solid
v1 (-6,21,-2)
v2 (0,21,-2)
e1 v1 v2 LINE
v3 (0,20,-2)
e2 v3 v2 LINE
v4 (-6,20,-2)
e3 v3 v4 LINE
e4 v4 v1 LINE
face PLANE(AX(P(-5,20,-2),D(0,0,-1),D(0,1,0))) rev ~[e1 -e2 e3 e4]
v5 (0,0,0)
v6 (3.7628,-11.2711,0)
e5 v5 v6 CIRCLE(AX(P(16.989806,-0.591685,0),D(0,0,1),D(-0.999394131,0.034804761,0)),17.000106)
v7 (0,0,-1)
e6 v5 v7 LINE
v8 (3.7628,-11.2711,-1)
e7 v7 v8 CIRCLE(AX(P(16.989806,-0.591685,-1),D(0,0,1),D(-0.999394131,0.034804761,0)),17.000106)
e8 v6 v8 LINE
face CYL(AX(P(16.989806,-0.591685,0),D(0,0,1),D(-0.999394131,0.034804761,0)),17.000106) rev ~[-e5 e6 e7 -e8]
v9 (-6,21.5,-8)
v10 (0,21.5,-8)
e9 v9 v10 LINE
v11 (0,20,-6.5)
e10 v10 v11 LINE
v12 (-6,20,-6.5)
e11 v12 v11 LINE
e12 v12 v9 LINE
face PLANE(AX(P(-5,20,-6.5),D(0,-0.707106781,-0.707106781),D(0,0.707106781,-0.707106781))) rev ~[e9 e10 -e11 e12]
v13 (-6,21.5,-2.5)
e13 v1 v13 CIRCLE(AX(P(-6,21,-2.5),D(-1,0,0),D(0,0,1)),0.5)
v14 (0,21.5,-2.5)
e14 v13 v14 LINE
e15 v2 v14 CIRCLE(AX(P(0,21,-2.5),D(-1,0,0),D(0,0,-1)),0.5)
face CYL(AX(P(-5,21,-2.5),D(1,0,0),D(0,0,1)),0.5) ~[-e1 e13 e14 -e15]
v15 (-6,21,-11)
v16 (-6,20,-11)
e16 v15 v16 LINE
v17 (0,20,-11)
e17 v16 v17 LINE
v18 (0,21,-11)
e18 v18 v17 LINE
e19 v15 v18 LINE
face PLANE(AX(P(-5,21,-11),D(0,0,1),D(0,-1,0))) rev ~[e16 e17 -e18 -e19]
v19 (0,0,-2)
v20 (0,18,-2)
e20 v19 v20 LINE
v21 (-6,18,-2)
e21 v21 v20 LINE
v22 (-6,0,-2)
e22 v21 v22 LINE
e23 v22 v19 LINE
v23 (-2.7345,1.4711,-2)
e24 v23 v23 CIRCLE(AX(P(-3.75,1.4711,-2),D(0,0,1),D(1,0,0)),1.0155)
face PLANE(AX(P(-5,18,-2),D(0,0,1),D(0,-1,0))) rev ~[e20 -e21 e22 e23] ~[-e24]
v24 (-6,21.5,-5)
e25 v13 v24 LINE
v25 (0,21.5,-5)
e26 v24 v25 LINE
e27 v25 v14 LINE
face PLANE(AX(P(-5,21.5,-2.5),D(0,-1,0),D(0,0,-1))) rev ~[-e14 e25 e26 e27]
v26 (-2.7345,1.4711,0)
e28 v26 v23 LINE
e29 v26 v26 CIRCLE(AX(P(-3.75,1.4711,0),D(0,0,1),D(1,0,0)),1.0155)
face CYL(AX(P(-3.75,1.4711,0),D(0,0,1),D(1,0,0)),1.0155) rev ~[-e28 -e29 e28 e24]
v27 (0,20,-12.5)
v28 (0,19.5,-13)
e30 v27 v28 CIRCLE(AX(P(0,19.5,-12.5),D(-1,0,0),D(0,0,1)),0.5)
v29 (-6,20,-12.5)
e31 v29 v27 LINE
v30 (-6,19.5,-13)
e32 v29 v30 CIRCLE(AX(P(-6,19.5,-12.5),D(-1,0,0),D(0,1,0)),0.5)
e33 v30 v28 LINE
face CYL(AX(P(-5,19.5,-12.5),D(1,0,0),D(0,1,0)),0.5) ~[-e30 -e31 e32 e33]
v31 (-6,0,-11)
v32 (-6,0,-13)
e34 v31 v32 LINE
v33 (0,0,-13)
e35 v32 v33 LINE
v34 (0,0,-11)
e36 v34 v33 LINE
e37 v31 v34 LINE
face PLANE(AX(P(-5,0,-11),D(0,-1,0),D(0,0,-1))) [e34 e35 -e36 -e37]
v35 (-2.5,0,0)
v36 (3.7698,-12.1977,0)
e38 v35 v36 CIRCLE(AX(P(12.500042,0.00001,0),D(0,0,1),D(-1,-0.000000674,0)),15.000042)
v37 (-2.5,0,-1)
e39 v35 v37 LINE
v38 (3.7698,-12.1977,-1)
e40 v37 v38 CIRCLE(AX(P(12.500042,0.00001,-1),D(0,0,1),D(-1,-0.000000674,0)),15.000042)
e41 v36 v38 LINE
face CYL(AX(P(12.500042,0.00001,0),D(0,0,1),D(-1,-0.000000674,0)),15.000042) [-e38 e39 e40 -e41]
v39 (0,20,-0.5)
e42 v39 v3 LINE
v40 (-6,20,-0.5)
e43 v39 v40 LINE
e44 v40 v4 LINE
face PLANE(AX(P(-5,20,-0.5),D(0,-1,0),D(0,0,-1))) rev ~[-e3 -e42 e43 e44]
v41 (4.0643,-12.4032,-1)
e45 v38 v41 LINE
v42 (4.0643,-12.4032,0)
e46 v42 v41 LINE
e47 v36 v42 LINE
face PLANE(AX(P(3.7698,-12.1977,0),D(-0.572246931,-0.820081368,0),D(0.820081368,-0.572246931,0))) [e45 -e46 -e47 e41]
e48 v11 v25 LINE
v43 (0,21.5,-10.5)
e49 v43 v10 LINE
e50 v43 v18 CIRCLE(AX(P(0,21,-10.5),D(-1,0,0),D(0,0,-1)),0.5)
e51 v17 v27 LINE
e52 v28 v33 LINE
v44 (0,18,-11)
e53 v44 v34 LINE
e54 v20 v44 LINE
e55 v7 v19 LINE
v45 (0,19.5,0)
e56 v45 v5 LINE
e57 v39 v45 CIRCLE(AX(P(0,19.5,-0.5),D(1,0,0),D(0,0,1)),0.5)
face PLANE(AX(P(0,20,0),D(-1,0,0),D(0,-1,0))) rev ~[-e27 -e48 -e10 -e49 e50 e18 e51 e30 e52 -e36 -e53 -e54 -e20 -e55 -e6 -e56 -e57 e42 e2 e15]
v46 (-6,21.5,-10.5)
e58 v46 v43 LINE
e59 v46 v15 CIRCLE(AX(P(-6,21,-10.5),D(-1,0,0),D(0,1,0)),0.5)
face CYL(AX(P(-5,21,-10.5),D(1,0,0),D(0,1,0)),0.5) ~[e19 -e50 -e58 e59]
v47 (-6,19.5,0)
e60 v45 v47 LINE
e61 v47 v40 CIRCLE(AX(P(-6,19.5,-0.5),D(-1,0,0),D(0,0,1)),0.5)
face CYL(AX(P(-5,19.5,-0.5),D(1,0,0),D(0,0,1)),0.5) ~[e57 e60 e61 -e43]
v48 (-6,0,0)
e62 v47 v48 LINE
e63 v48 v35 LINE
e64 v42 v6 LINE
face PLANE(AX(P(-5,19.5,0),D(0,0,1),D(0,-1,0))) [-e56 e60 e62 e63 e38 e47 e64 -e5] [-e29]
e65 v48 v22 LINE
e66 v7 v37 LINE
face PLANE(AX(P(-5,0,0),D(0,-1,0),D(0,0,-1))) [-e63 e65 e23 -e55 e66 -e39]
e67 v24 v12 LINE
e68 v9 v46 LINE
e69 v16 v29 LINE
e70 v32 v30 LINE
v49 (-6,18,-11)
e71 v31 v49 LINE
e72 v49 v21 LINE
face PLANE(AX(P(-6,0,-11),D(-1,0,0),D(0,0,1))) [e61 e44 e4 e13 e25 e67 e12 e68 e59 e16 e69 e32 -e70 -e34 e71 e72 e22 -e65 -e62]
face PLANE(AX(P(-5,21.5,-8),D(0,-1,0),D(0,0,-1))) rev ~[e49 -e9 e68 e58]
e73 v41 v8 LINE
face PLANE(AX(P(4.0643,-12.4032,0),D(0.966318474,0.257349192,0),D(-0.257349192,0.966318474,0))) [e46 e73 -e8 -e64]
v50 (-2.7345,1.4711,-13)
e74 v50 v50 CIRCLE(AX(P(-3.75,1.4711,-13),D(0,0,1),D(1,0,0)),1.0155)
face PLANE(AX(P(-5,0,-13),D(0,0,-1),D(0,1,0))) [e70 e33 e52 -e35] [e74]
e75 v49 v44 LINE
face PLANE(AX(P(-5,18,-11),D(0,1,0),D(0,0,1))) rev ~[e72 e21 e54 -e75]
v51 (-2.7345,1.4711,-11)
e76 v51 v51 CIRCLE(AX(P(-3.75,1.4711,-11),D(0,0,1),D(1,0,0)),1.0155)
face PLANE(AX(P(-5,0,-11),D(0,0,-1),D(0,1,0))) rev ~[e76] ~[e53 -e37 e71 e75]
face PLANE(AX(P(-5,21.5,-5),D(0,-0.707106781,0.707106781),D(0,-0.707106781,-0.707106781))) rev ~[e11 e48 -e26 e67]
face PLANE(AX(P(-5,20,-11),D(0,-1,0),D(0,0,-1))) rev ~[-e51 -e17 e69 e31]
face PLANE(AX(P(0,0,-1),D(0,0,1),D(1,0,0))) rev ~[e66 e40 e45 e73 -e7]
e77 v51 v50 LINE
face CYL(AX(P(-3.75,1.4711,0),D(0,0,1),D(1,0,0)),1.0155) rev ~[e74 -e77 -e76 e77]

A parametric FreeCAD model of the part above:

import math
import FreeCAD as App
import Part
import Sketcher
Q = App.Units.Quantity


def edges_at(feature, points):
    """Names of the edges that pass closest to the given points."""
    edges = feature.Shape.Edges
    near = lambda p: min(range(len(edges)), key=lambda i: edges[i].distToShape(Part.Vertex(*p))[0])
    return sorted({f"Edge{near(p) + 1}" for p in points})


def add_polygon(sketch, points):
    """Adds a closed chain of lines whose ends are joined by coincident constraints."""
    first, n = sketch.GeometryCount, len(points)
    for a, b in zip(points, points[1:] + points[:1]):
        sketch.addGeometry(Part.LineSegment(App.Vector(*a, 0), App.Vector(*b, 0)), False)
    for i in range(n):
        sketch.addConstraint(Sketcher.Constraint("Coincident", first + i, 2, first + (i + 1) % n, 1))

doc = App.newDocument("Part")
body = doc.addObject("PartDesign::Body", "Body")

# Sketch on XY plane
sketch1 = body.newObject("Sketcher::SketchObject", "Sketch")
sketch1.AttachmentSupport = (doc.getObject("XY_Plane"), [""])
sketch1.MapMode = "FlatFace"
add_polygon(sketch1, [(0, 0), (0, 20), (-5, 20), (-5, 0)])  # lines 0-3
sketch1.addConstraint([
    Sketcher.Constraint("Vertical", 0),
    Sketcher.Constraint("Horizontal", 1),
    Sketcher.Constraint("Vertical", 2),
    Sketcher.Constraint("Horizontal", 3),
    Sketcher.Constraint("Coincident", 3, 2, -1, 1),
    Sketcher.Constraint("DistanceX", 1, 2, 1, 1, Q("5 mm")),
    Sketcher.Constraint("DistanceY", 0, 1, 0, 2, Q("20 mm")),
])
pad1 = body.newObject("PartDesign::Pad", "Pad")
pad1.Profile = sketch1
pad1.Length = 13
pad1.Reversed = True

# Sketch on XY plane
sketch2 = body.newObject("Sketcher::SketchObject", "Sketch001")
sketch2.AttachmentSupport = (doc.getObject("XY_Plane"), [""])
sketch2.MapMode = "FlatFace"
sketch2.addGeometry([
    Part.ArcOfCircle(Part.Circle(App.Vector(16.99, -0.59, 0), App.Vector(0, 0, 1), 17), math.radians(178), math.radians(219)),  # 0
    Part.LineSegment(App.Vector(0, 0, 0), App.Vector(-2.5, 0, 0)),  # 1
    Part.ArcOfCircle(Part.Circle(App.Vector(12.5, 0, 0), App.Vector(0, 0, 1), 15), math.radians(180), math.radians(234)),  # 2
    Part.LineSegment(App.Vector(3.77, -12.2, 0), App.Vector(4.06, -12.4, 0)),  # 3
    Part.LineSegment(App.Vector(4.06, -12.4, 0), App.Vector(3.76, -11.27, 0)),  # 4
], False)
sketch2.addConstraint([
    Sketcher.Constraint("Coincident", 0, 1, 1, 1),
    Sketcher.Constraint("Coincident", 1, 2, 2, 1),
    Sketcher.Constraint("Coincident", 2, 2, 3, 1),
    Sketcher.Constraint("Coincident", 3, 2, 4, 1),
    Sketcher.Constraint("Coincident", 4, 2, 0, 2),
    Sketcher.Constraint("Horizontal", 1),
    Sketcher.Constraint("Coincident", 0, 1, -1, 1),
    Sketcher.Constraint("PointOnObject", 2, 3, -1),
    Sketcher.Constraint("Radius", 0, Q("17 mm")),
    Sketcher.Constraint("Radius", 2, Q("15 mm")),
    Sketcher.Constraint("DistanceX", 1, 2, 1, 1, Q("2.5 mm")),
    Sketcher.Constraint("DistanceX", 2, 2, 0, 3, Q("13.22 mm")),
    Sketcher.Constraint("Distance", 3, Q("0.359 mm")),
    Sketcher.Constraint("DistanceY", 4, 2, -1, 1, Q("11.271 mm")),
    Sketcher.Constraint("DistanceY", 2, 2, 0, 3, Q("11.606 mm")),
    Sketcher.Constraint("DistanceY", 3, 2, 4, 2, Q("1.132 mm")),
])
pad2 = body.newObject("PartDesign::Pad", "Pad001")
pad2.Profile = sketch2
pad2.Length = 1
pad2.Reversed = True

# Sketch on YZ plane
sketch3 = body.newObject("Sketcher::SketchObject", "Sketch002")
sketch3.AttachmentSupport = (doc.getObject("YZ_Plane"), [""])
sketch3.MapMode = "FlatFace"
add_polygon(sketch3, [(21.5, -8), (20, -6.5), (20, -11), (21.5, -11)])  # lines 0-3
sketch3.addConstraint([
    Sketcher.Constraint("Vertical", 1),
    Sketcher.Constraint("Horizontal", 2),
    Sketcher.Constraint("Vertical", 3),
    Sketcher.Constraint("DistanceX", 2, 1, 2, 2, Q("1.5 mm")),
    Sketcher.Constraint("DistanceY", 1, 2, 1, 1, Q("4.5 mm")),
    Sketcher.Constraint("DistanceY", 3, 2, 0, 2, Q("1.5 mm")),
    Sketcher.Constraint("DistanceX", -1, 1, 0, 2, Q("20 mm")),
    Sketcher.Constraint("DistanceY", 1, 2, -1, 1, Q("11 mm")),
])
pad3 = body.newObject("PartDesign::Pad", "Pad002")
pad3.Profile = sketch3
pad3.Length = 5
pad3.Reversed = True

# Sketch on YZ plane
sketch4 = body.newObject("Sketcher::SketchObject", "Sketch003")
sketch4.AttachmentSupport = (doc.getObject("YZ_Plane"), [""])
sketch4.MapMode = "FlatFace"
add_polygon(sketch4, [(21.5, -2), (20, -2), (20, -6.5), (21.5, -5)])  # lines 0-3
add_polygon(sketch4, [(21.5, -8), (20, -6.5), (20, -11), (21.5, -11)])  # lines 4-7
sketch4.addConstraint([
    Sketcher.Constraint("Horizontal", 0),
    Sketcher.Constraint("Vertical", 1),
    Sketcher.Constraint("Vertical", 3),
    Sketcher.Constraint("Vertical", 5),
    Sketcher.Constraint("Horizontal", 6),
    Sketcher.Constraint("Vertical", 7),
    Sketcher.Constraint("Coincident", 4, 2, 1, 2),
    Sketcher.Constraint("Perpendicular", 2, 4),
    Sketcher.Constraint("Vertical", 3, 2, 6, 2),
    Sketcher.Constraint("Equal", 1, 5),
    Sketcher.Constraint("Equal", 3, 7),
    Sketcher.Constraint("DistanceX", 0, 2, 0, 1, Q("1.5 mm")),
    Sketcher.Constraint("DistanceY", 1, 2, 1, 1, Q("4.5 mm")),
    Sketcher.Constraint("DistanceY", 0, 2, -1, 1, Q("2 mm")),
    Sketcher.Constraint("DistanceX", -1, 1, 0, 2, Q("20 mm")),
])
pad4 = body.newObject("PartDesign::Pad", "Pad003")
pad4.Profile = sketch4
pad4.Length = 5
pad4.Reversed = True

# Sketch on YZ plane
sketch5 = body.newObject("Sketcher::SketchObject", "Sketch004")
sketch5.AttachmentSupport = (doc.getObject("YZ_Plane"), [""])
sketch5.MapMode = "FlatFace"
add_polygon(sketch5, [(18, -2), (0, -2), (0, -11), (18, -11)])  # lines 0-3
sketch5.addConstraint([
    Sketcher.Constraint("Horizontal", 0),
    Sketcher.Constraint("Vertical", 1),
    Sketcher.Constraint("Horizontal", 2),
    Sketcher.Constraint("Vertical", 3),
    Sketcher.Constraint("PointOnObject", 0, 2, -2),
    Sketcher.Constraint("DistanceX", 0, 2, 0, 1, Q("18 mm")),
    Sketcher.Constraint("DistanceY", 0, 2, -1, 1, Q("2 mm")),
    Sketcher.Constraint("DistanceY", 1, 2, 1, 1, Q("9 mm")),
])
pocket1 = body.newObject("PartDesign::Pocket", "Pocket")
pocket1.Profile = sketch5
pocket1.Type = "ThroughAll"

# Sketch on XY plane
sketch6 = body.newObject("Sketcher::SketchObject", "Sketch005")
sketch6.AttachmentSupport = (doc.getObject("XY_Plane"), [""])
sketch6.MapMode = "FlatFace"
sketch6.addGeometry(Part.Circle(App.Vector(-3.8, 1.5, 0), App.Vector(0, 0, 1), 1), False)
sketch6.addConstraint([
    Sketcher.Constraint("Diameter", 0, Q("2.031 mm")),
    Sketcher.Constraint("DistanceX", 0, 3, -1, 1, Q("3.75 mm")),
    Sketcher.Constraint("DistanceY", -1, 1, 0, 3, Q("1.471 mm")),
])
pocket2 = body.newObject("PartDesign::Pocket", "Pocket001")
pocket2.Profile = sketch6
pocket2.Type = "ThroughAll"
doc.recompute()

fillet = body.newObject("PartDesign::Fillet", "Fillet")
fillet.Base = (pocket2, edges_at(pocket2, [(-2.5, 21.5, -11), (-2.5, 21.5, -2)]))
fillet.Radius = 0.5
doc.recompute()

fillet2 = body.newObject("PartDesign::Fillet", "Fillet001")
fillet2.Base = (fillet, edges_at(fillet, [(-2.5, 20, -13), (-2.5, 20, 0)]))
fillet2.Radius = 0.5

# Sketch on YZ plane
sketch7 = body.newObject("Sketcher::SketchObject", "Sketch006")
sketch7.AttachmentSupport = (doc.getObject("YZ_Plane"), [""])
sketch7.MapMode = "FlatFace"
sketch7.AttachmentOffset = App.Placement(App.Vector(0, 0, -5), App.Rotation())
sketch7.addGeometry([
    Part.LineSegment(App.Vector(0, 0, 0), App.Vector(19.5, 0, 0)),  # 0
    Part.ArcOfCircle(Part.Circle(App.Vector(19.5, -0.5, 0), App.Vector(0, 0, 1), 0.5), math.radians(0), math.radians(90)),  # 1
    Part.LineSegment(App.Vector(20, -0.5, 0), App.Vector(20, -2, 0)),  # 2
    Part.LineSegment(App.Vector(20, -2, 0), App.Vector(21, -2, 0)),  # 3
    Part.ArcOfCircle(Part.Circle(App.Vector(21, -2.5, 0), App.Vector(0, 0, 1), 0.5), math.radians(0), math.radians(90)),  # 4
    Part.LineSegment(App.Vector(21.5, -2.5, 0), App.Vector(21.5, -5, 0)),  # 5
    Part.LineSegment(App.Vector(21.5, -5, 0), App.Vector(20, -6.5, 0)),  # 6
    Part.LineSegment(App.Vector(20, -6.5, 0), App.Vector(21.5, -8, 0)),  # 7
    Part.LineSegment(App.Vector(21.5, -8, 0), App.Vector(21.5, -10.5, 0)),  # 8
    Part.ArcOfCircle(Part.Circle(App.Vector(21, -10.5, 0), App.Vector(0, 0, 1), 0.5), math.radians(-90), math.radians(0)),  # 9
    Part.LineSegment(App.Vector(21, -11, 0), App.Vector(20, -11, 0)),  # 10
    Part.LineSegment(App.Vector(20, -11, 0), App.Vector(20, -12.5, 0)),  # 11
    Part.ArcOfCircle(Part.Circle(App.Vector(19.5, -12.5, 0), App.Vector(0, 0, 1), 0.5), math.radians(-90), math.radians(0)),  # 12
    Part.LineSegment(App.Vector(19.5, -13, 0), App.Vector(0, -13, 0)),  # 13
    Part.LineSegment(App.Vector(0, -13, 0), App.Vector(0, -11, 0)),  # 14
    Part.LineSegment(App.Vector(0, -11, 0), App.Vector(18, -11, 0)),  # 15
    Part.LineSegment(App.Vector(18, -11, 0), App.Vector(18, -2, 0)),  # 16
    Part.LineSegment(App.Vector(18, -2, 0), App.Vector(0, -2, 0)),  # 17
    Part.LineSegment(App.Vector(0, -2, 0), App.Vector(0, 0, 0)),  # 18
], False)
sketch7.addConstraint([
    Sketcher.Constraint("Tangent", 0, 2, 1, 2),
    Sketcher.Constraint("Tangent", 1, 1, 2, 1),
    Sketcher.Constraint("Coincident", 2, 2, 3, 1),
    Sketcher.Constraint("Tangent", 3, 2, 4, 2),
    Sketcher.Constraint("Tangent", 4, 1, 5, 1),
    Sketcher.Constraint("Coincident", 5, 2, 6, 1),
    Sketcher.Constraint("Coincident", 6, 2, 7, 1),
    Sketcher.Constraint("Coincident", 7, 2, 8, 1),
    Sketcher.Constraint("Tangent", 8, 2, 9, 2),
    Sketcher.Constraint("Tangent", 9, 1, 10, 1),
    Sketcher.Constraint("Coincident", 10, 2, 11, 1),
    Sketcher.Constraint("Tangent", 11, 2, 12, 2),
    Sketcher.Constraint("Tangent", 12, 1, 13, 1),
    Sketcher.Constraint("Coincident", 13, 2, 14, 1),
    Sketcher.Constraint("Coincident", 14, 2, 15, 1),
    Sketcher.Constraint("Coincident", 15, 2, 16, 1),
    Sketcher.Constraint("Coincident", 16, 2, 17, 1),
    Sketcher.Constraint("Coincident", 17, 2, 18, 1),
    Sketcher.Constraint("Coincident", 18, 2, 0, 1),
    Sketcher.Constraint("Horizontal", 0),
    Sketcher.Constraint("Vertical", 2),
    Sketcher.Constraint("Horizontal", 3),
    Sketcher.Constraint("Vertical", 5),
    Sketcher.Constraint("Vertical", 8),
    Sketcher.Constraint("Horizontal", 10),
    Sketcher.Constraint("Vertical", 11),
    Sketcher.Constraint("Horizontal", 13),
    Sketcher.Constraint("Vertical", 14),
    Sketcher.Constraint("Horizontal", 15),
    Sketcher.Constraint("Vertical", 16),
    Sketcher.Constraint("Horizontal", 17),
    Sketcher.Constraint("Vertical", 18),
    Sketcher.Constraint("Coincident", 18, 2, -1, 1),
    Sketcher.Constraint("Equal", 1, 4),
    Sketcher.Constraint("Equal", 4, 9),
    Sketcher.Constraint("Equal", 9, 12),
    Sketcher.Constraint("PointOnObject", 13, 2, -2),
    Sketcher.Constraint("Perpendicular", 6, 7),
    Sketcher.Constraint("Horizontal", 10, 2, 14, 2),
    Sketcher.Constraint("Horizontal", 3, 2, 16, 2),
    Sketcher.Constraint("Vertical", 4, 3, 9, 3),
    Sketcher.Constraint("Vertical", 1, 3, 12, 3),
    Sketcher.Constraint("Vertical", 2, 2, 6, 2),
    Sketcher.Constraint("Equal", 5, 8),
    Sketcher.Constraint("Equal", 2, 11),
    Sketcher.Constraint("Equal", 6, 7),
    Sketcher.Constraint("Radius", 1, Q("0.5 mm")),
    Sketcher.Constraint("DistanceX", 3, 1, 3, 2, Q("1 mm")),
    Sketcher.Constraint("DistanceX", 15, 1, 15, 2, Q("18 mm")),
    Sketcher.Constraint("DistanceY", 14, 1, 14, 2, Q("2 mm")),
    Sketcher.Constraint("DistanceY", 16, 1, 16, 2, Q("9 mm")),
    Sketcher.Constraint("DistanceX", 0, 1, 0, 2, Q("19.5 mm")),
])
pad5 = body.newObject("PartDesign::Pad", "Pad004")
pad5.Profile = sketch7
pad5.Length = 1
pad5.Reversed = True

doc.recompute()
